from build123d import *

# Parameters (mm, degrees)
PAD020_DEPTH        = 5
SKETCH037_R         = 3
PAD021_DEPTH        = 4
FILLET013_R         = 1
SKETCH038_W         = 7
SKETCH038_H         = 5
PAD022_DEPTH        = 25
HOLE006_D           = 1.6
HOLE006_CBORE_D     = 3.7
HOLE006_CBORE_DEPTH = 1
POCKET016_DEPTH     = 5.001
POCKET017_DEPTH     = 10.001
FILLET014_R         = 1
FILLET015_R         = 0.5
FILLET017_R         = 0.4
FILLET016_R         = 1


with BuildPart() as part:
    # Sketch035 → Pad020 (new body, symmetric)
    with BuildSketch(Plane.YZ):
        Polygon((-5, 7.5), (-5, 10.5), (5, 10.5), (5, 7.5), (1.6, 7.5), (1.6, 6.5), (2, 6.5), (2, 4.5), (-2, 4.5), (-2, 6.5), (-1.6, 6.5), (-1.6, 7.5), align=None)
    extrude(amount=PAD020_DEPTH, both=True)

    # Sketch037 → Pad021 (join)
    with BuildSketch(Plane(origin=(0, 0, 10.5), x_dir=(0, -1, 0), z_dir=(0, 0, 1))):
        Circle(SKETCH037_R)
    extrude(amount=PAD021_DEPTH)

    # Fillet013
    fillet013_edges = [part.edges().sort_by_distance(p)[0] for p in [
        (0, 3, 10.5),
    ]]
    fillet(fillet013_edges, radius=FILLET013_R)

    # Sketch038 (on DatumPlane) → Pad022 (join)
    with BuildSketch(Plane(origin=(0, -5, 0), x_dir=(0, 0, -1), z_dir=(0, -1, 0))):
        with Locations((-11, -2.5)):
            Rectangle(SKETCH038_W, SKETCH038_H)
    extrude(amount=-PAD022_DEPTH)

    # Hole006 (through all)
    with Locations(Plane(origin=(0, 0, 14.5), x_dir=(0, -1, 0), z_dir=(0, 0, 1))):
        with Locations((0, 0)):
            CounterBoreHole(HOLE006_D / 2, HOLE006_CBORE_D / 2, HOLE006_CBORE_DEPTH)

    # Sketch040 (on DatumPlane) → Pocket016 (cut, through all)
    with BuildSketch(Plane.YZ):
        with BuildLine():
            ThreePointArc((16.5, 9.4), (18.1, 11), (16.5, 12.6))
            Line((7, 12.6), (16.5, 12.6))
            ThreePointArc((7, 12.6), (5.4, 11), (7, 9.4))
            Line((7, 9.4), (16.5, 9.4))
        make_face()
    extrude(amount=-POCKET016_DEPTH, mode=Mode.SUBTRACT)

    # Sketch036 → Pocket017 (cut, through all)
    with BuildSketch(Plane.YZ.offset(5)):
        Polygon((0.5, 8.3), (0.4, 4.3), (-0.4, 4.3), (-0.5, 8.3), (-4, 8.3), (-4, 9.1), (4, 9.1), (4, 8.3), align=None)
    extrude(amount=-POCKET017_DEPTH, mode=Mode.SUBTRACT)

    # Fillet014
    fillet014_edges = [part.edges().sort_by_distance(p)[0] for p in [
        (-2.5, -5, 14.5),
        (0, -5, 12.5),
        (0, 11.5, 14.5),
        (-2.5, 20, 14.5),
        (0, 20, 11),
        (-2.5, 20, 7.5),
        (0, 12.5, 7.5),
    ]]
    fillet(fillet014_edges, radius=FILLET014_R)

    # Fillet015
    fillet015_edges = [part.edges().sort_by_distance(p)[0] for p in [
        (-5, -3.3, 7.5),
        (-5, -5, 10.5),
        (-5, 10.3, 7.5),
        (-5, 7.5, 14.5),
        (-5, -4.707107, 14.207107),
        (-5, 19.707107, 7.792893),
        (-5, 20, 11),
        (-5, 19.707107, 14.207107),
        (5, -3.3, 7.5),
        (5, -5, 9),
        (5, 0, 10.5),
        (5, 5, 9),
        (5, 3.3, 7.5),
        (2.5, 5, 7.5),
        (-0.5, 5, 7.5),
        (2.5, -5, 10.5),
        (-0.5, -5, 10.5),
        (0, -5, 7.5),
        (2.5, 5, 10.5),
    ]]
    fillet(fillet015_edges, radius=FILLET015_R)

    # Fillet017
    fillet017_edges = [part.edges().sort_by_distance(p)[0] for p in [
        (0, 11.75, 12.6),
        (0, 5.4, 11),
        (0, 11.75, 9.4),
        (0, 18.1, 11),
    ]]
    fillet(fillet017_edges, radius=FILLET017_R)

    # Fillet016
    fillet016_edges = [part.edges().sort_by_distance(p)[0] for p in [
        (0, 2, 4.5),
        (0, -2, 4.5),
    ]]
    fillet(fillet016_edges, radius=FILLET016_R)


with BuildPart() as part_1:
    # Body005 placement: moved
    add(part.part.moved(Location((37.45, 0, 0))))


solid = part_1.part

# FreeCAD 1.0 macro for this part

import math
import FreeCAD as App
import Part
import Sketcher

V = App.Vector
Q = App.Units.Quantity


def edges_at(feature, points):
    """Names of the edges that pass closest to the given points."""
    edges = feature.Shape.Edges
    near = lambda p: min(range(len(edges)), key=lambda i: edges[i].distToShape(Part.Vertex(*p))[0])
    return sorted({f"Edge{near(p) + 1}" for p in points})

doc = App.newDocument("Part")
params = doc.addObject("Spreadsheet::Sheet", "Params")
for row, (alias, value) in enumerate([
    ("sketch1_width", "4 mm"),
    ("sketch1_width2", "10 mm"),
    ("sketch1_height", "3 mm"),
    ("sketch1_height2", "1 mm"),
    ("sketch1_height3", "2 mm"),
    ("pad1_length", "10 mm"),
    ("sketch2_diameter", "6 mm"),
    ("pad2_length", "4 mm"),
    ("fillet_radius", "1 mm"),
    ("sketch3_width", "5 mm"),
    ("sketch3_height", "7 mm"),
    ("pad3_length", "25 mm"),
    ("sketch4_diameter", "1.6 mm"),
    ("hole_diameter", "1.6 mm"),
    ("hole_cbore_diameter", "3.7 mm"),
    ("hole_cbore_depth", "1 mm"),
    ("sketch5_radius", "1.6 mm"),
    ("sketch5_width", "9.5 mm"),
    ("sketch6_width", "8 mm"),
    ("sketch6_width2", "3.5 mm"),
    ("sketch6_width3", "0.8 mm"),
    ("fillet2_radius", "1 mm"),
    ("fillet3_radius", "0.5 mm"),
    ("fillet4_radius", "0.4 mm"),
    ("fillet5_radius", "1 mm"),
], start=1):
    params.set(f"A{row}", alias)
    params.set(f"B{row}", "=" + value)
    params.setAlias(f"B{row}", alias)

body = doc.addObject("PartDesign::Body", "Body")

sketch1 = body.newObject("Sketcher::SketchObject", "Sketch")
sketch1.AttachmentSupport = (doc.getObject("YZ_Plane"), [""])
sketch1.MapMode = "FlatFace"
sketch1.addGeometry([
    Part.LineSegment(V(-5, 10.5, 0), V(-5, 7.5, 0)),
    Part.LineSegment(V(-5, 7.5, 0), V(-1.6, 7.5, 0)),
    Part.LineSegment(V(-1.6, 7.5, 0), V(-1.6, 6.5, 0)),
    Part.LineSegment(V(-1.6, 6.5, 0), V(-2, 6.5, 0)),
    Part.LineSegment(V(-2, 6.5, 0), V(-2, 4.5, 0)),
    Part.LineSegment(V(-2, 4.5, 0), V(2, 4.5, 0)),
    Part.LineSegment(V(2, 4.5, 0), V(2, 6.5, 0)),
    Part.LineSegment(V(2, 6.5, 0), V(1.6, 6.5, 0)),
    Part.LineSegment(V(1.6, 6.5, 0), V(1.6, 7.5, 0)),
    Part.LineSegment(V(1.6, 7.5, 0), V(5, 7.5, 0)),
    Part.LineSegment(V(5, 7.5, 0), V(5, 10.5, 0)),
    Part.LineSegment(V(5, 10.5, 0), V(-5, 10.5, 0)),
], False)
sketch1.addConstraint([
    Sketcher.Constraint("Coincident", 0, 2, 1, 1),
    Sketcher.Constraint("Coincident", 1, 2, 2, 1),
    Sketcher.Constraint("Coincident", 2, 2, 3, 1),
    Sketcher.Constraint("Coincident", 3, 2, 4, 1),
    Sketcher.Constraint("Coincident", 4, 2, 5, 1),
    Sketcher.Constraint("Coincident", 5, 2, 6, 1),
    Sketcher.Constraint("Coincident", 6, 2, 7, 1),
    Sketcher.Constraint("Coincident", 7, 2, 8, 1),
    Sketcher.Constraint("Coincident", 8, 2, 9, 1),
    Sketcher.Constraint("Coincident", 9, 2, 10, 1),
    Sketcher.Constraint("Coincident", 10, 2, 11, 1),
    Sketcher.Constraint("Coincident", 11, 2, 0, 1),
    Sketcher.Constraint("Vertical", 0),
    Sketcher.Constraint("Horizontal", 1),
    Sketcher.Constraint("Vertical", 2),
    Sketcher.Constraint("Horizontal", 3),
    Sketcher.Constraint("Vertical", 4),
    Sketcher.Constraint("Horizontal", 5),
    Sketcher.Constraint("Vertical", 6),
    Sketcher.Constraint("Horizontal", 7),
    Sketcher.Constraint("Vertical", 8),
    Sketcher.Constraint("Horizontal", 9),
    Sketcher.Constraint("Vertical", 10),
    Sketcher.Constraint("Horizontal", 11),
    Sketcher.Constraint("Symmetric", 3, 2, 6, 2, -2),
    Sketcher.Constraint("Symmetric", 1, 2, 8, 2, -2),
    Sketcher.Constraint("Equal", 1, 9),
    Sketcher.Constraint("DistanceX", 5, 1, 5, 2, Q("4 mm")),
    Sketcher.Constraint("DistanceX", 11, 2, 11, 1, Q("10 mm")),
    Sketcher.Constraint("DistanceY", 0, 2, 0, 1, Q("3 mm")),
    Sketcher.Constraint("DistanceY", 2, 2, 2, 1, Q("1 mm")),
    Sketcher.Constraint("DistanceY", 4, 2, 4, 1, Q("2 mm")),
    Sketcher.Constraint("DistanceX", 1, 1, 1, 2, Q("3.4 mm")),
    Sketcher.Constraint("DistanceY", -1, 1, 0, 2, Q("7.5 mm")),
])
sketch1.setExpression("Constraints[27]", "Params.sketch1_width")
sketch1.setExpression("Constraints[28]", "Params.sketch1_width2")
sketch1.setExpression("Constraints[29]", "Params.sketch1_height")
sketch1.setExpression("Constraints[30]", "Params.sketch1_height2")
sketch1.setExpression("Constraints[31]", "Params.sketch1_height3")
pad1 = body.newObject("PartDesign::Pad", "Pad")
pad1.Profile = sketch1
pad1.setExpression("Length", "Params.pad1_length")
pad1.Midplane = True

sketch2 = body.newObject("Sketcher::SketchObject", "Sketch001")
sketch2.AttachmentSupport = (doc.getObject("XY_Plane"), [""])
sketch2.MapMode = "FlatFace"
sketch2.AttachmentOffset = App.Placement(V(0, 0, 10.5), App.Rotation())
sketch2.addGeometry(Part.Circle(V(0, 0, 0), V(0, 0, 1), 3), False)
sketch2.addConstraint([
    Sketcher.Constraint("Coincident", 0, 3, -1, 1),
    Sketcher.Constraint("Diameter", 0, Q("6 mm")),
])
sketch2.setExpression("Constraints[1]", "Params.sketch2_diameter")
pad2 = body.newObject("PartDesign::Pad", "Pad001")
pad2.Profile = sketch2
pad2.setExpression("Length", "Params.pad2_length")
doc.recompute()

fillet = body.newObject("PartDesign::Fillet", "Fillet")
fillet.Base = (pad2, edges_at(pad2, [(0, 3, 10.5)]))
fillet.setExpression("Radius", "Params.fillet_radius")

sketch3 = body.newObject("Sketcher::SketchObject", "Sketch002")
sketch3.AttachmentSupport = (doc.getObject("XZ_Plane"), [""])
sketch3.MapMode = "FlatFace"
sketch3.AttachmentOffset = App.Placement(V(0, 0, 5), App.Rotation())
sketch3.addGeometry([
    Part.LineSegment(V(0, 14, 0), V(-5, 14, 0)),
    Part.LineSegment(V(-5, 14, 0), V(-5, 8, 0)),
    Part.LineSegment(V(-5, 8, 0), V(0, 8, 0)),
    Part.LineSegment(V(0, 8, 0), V(0, 14, 0)),
], False)
sketch3.addConstraint([
    Sketcher.Constraint("Coincident", 0, 2, 1, 1),
    Sketcher.Constraint("Coincident", 1, 2, 2, 1),
    Sketcher.Constraint("Coincident", 2, 2, 3, 1),
    Sketcher.Constraint("Coincident", 3, 2, 0, 1),
    Sketcher.Constraint("Horizontal", 0),
    Sketcher.Constraint("Vertical", 1),
    Sketcher.Constraint("Horizontal", 2),
    Sketcher.Constraint("Vertical", 3),
    Sketcher.Constraint("PointOnObject", 2, 2, -2),
    Sketcher.Constraint("DistanceX", 0, 2, 0, 1, Q("5 mm")),
    Sketcher.Constraint("DistanceY", 1, 2, 1, 1, Q("7 mm")),
    Sketcher.Constraint("DistanceY", -1, 1, 0, 2, Q("14.5 mm")),
])
sketch3.setExpression("Constraints[9]", "Params.sketch3_width")
sketch3.setExpression("Constraints[10]", "Params.sketch3_height")
pad3 = body.newObject("PartDesign::Pad", "Pad002")
pad3.Profile = sketch3
pad3.setExpression("Length", "Params.pad3_length")
pad3.Reversed = True

sketch4 = body.newObject("Sketcher::SketchObject", "Sketch003")
sketch4.AttachmentSupport = (doc.getObject("XY_Plane"), [""])
sketch4.MapMode = "FlatFace"
sketch4.AttachmentOffset = App.Placement(V(0, 0, 14.5), App.Rotation())
sketch4.addGeometry(Part.Circle(V(0, 0, 0), V(0, 0, 1), 0.8), False)
sketch4.addConstraint([
    Sketcher.Constraint("Coincident", 0, 3, -1, 1),
    Sketcher.Constraint("Diameter", 0, Q("1.6 mm")),
])
sketch4.setExpression("Constraints[1]", "Params.sketch4_diameter")
doc.recompute()
hole = body.newObject("PartDesign::Hole", "Hole")
hole.Profile = sketch4
hole.ThreadType = "None"
hole.setExpression("Diameter", "Params.hole_diameter")
hole.DepthType = "ThroughAll"
hole.HoleCutType = "Counterbore"
hole.setExpression("HoleCutDiameter", "Params.hole_cbore_diameter")
hole.setExpression("HoleCutDepth", "Params.hole_cbore_depth")

sketch5 = body.newObject("Sketcher::SketchObject", "Sketch004")
sketch5.AttachmentSupport = (doc.getObject("YZ_Plane"), [""])
sketch5.MapMode = "FlatFace"
sketch5.addGeometry([
    Part.ArcOfCircle(Part.Circle(V(16.5, 11, 0), V(0, 0, 1), 1.6), math.radians(-90), math.radians(90)),
    Part.LineSegment(V(16.5, 12.6, 0), V(7, 12.6, 0)),
    Part.ArcOfCircle(Part.Circle(V(7, 11, 0), V(0, 0, 1), 1.6), math.radians(90), math.radians(270)),
    Part.LineSegment(V(7, 9.4, 0), V(16.5, 9.4, 0)),
], False)
sketch5.addConstraint([
    Sketcher.Constraint("Tangent", 0, 2, 1, 1),
    Sketcher.Constraint("Tangent", 1, 2, 2, 1),
    Sketcher.Constraint("Tangent", 2, 2, 3, 1),
    Sketcher.Constraint("Tangent", 3, 2, 0, 1),
    Sketcher.Constraint("Horizontal", 1),
    Sketcher.Constraint("Horizontal", 3),
    Sketcher.Constraint("Radius", 0, Q("1.6 mm")),
    Sketcher.Constraint("DistanceX", 1, 2, 1, 1, Q("9.5 mm")),
    Sketcher.Constraint("DistanceY", -1, 1, 0, 3, Q("11 mm")),
    Sketcher.Constraint("DistanceX", -1, 1, 2, 3, Q("7 mm")),
])
sketch5.setExpression("Constraints[6]", "Params.sketch5_radius")
sketch5.setExpression("Constraints[7]", "Params.sketch5_width")
pocket1 = body.newObject("PartDesign::Pocket", "Pocket")
pocket1.Profile = sketch5
pocket1.Type = "ThroughAll"

sketch6 = body.newObject("Sketcher::SketchObject", "Sketch005")
sketch6.AttachmentSupport = (doc.getObject("YZ_Plane"), [""])
sketch6.MapMode = "FlatFace"
sketch6.AttachmentOffset = App.Placement(V(0, 0, 5), App.Rotation())
sketch6.addGeometry([
    Part.LineSegment(V(0.4, 4.3, 0), V(0.5, 8.3, 0)),
    Part.LineSegment(V(0.5, 8.3, 0), V(4, 8.3, 0)),
    Part.LineSegment(V(4, 8.3, 0), V(4, 9.1, 0)),
    Part.LineSegment(V(4, 9.1, 0), V(-4, 9.1, 0)),
    Part.LineSegment(V(-4, 9.1, 0), V(-4, 8.3, 0)),
    Part.LineSegment(V(-4, 8.3, 0), V(-0.5, 8.3, 0)),
    Part.LineSegment(V(-0.5, 8.3, 0), V(-0.4, 4.3, 0)),
    Part.LineSegment(V(-0.4, 4.3, 0), V(0.4, 4.3, 0)),
], False)
sketch6.addConstraint([
    Sketcher.Constraint("Coincident", 0, 2, 1, 1),
    Sketcher.Constraint("Coincident", 1, 2, 2, 1),
    Sketcher.Constraint("Coincident", 2, 2, 3, 1),
    Sketcher.Constraint("Coincident", 3, 2, 4, 1),
    Sketcher.Constraint("Coincident", 4, 2, 5, 1),
    Sketcher.Constraint("Coincident", 5, 2, 6, 1),
    Sketcher.Constraint("Coincident", 6, 2, 7, 1),
    Sketcher.Constraint("Coincident", 7, 2, 0, 1),
    Sketcher.Constraint("Horizontal", 1),
    Sketcher.Constraint("Vertical", 2),
    Sketcher.Constraint("Horizontal", 3),
    Sketcher.Constraint("Vertical", 4),
    Sketcher.Constraint("Horizontal", 5),
    Sketcher.Constraint("Horizontal", 7),
    Sketcher.Constraint("Symmetric", 1, 2, 4, 2, -2),
    Sketcher.Constraint("Equal", 1, 5),
    Sketcher.Constraint("Equal", 7, 2),
    Sketcher.Constraint("Equal", 0, 6),
    Sketcher.Constraint("DistanceX", 3, 2, 3, 1, Q("8 mm")),
    Sketcher.Constraint("DistanceX", 1, 1, 1, 2, Q("3.5 mm")),
    Sketcher.Constraint("DistanceX", 7, 1, 7, 2, Q("0.8 mm")),
    Sketcher.Constraint("DistanceY", 6, 2, 5, 2, Q("4 mm")),
    Sketcher.Constraint("DistanceY", -1, 1, 0, 2, Q("8.3 mm")),
])
sketch6.setExpression("Constraints[18]", "Params.sketch6_width")
sketch6.setExpression("Constraints[19]", "Params.sketch6_width2")
sketch6.setExpression("Constraints[20]", "Params.sketch6_width3")
pocket2 = body.newObject("PartDesign::Pocket", "Pocket001")
pocket2.Profile = sketch6
pocket2.Type = "ThroughAll"
doc.recompute()

fillet2 = body.newObject("PartDesign::Fillet", "Fillet001")
fillet2.Base = (pocket2, edges_at(pocket2, [
    (-2.5, -5, 14.5),
    (0, -5, 12.5),
    (0, 11.5, 14.5),
    (-2.5, 20, 14.5),
    (0, 20, 11),
    (-2.5, 20, 7.5),
    (0, 12.5, 7.5),
]))
fillet2.setExpression("Radius", "Params.fillet2_radius")
doc.recompute()

fillet3 = body.newObject("PartDesign::Fillet", "Fillet002")
fillet3.Base = (fillet2, edges_at(fillet2, [
    (-5, -3.3, 7.5),
    (-5, -5, 10.5),
    (-5, 10.3, 7.5),
    (-5, 7.5, 14.5),
    (-5, -4.707, 14.207),
    (-5, 19.707, 7.793),
    (-5, 20, 11),
    (-5, 19.707, 14.207),
    (5, -3.3, 7.5),
    (5, -5, 9),
    (5, 0, 10.5),
    (5, 5, 9),
    (5, 3.3, 7.5),
    (2, 5, 7.5),
    (2, 5, 7.5),
    (2, -5, 10.5),
    (2, -5, 10.5),
    (0, -5, 7.5),
    (2.5, 5, 10.5),
]))
fillet3.setExpression("Radius", "Params.fillet3_radius")
doc.recompute()

fillet4 = body.newObject("PartDesign::Fillet", "Fillet003")
fillet4.Base = (fillet3, edges_at(fillet3, [
    (0, 11.75, 12.6),
    (0, 5.4, 11),
    (0, 11.75, 9.4),
    (0, 18.1, 11),
]))
fillet4.setExpression("Radius", "Params.fillet4_radius")
doc.recompute()

fillet5 = body.newObject("PartDesign::Fillet", "Fillet004")
fillet5.Base = (fillet4, edges_at(fillet4, [(0, 2, 4.5), (0, -2, 4.5)]))
fillet5.setExpression("Radius", "Params.fillet5_radius")
body2 = doc.addObject("PartDesign::Body", "Body001")
doc.recompute()

body.Placement = App.Placement(V(37.45, 0, 0), App.Rotation(V(0, 0, 1), 0))
boolean = body2.newObject("PartDesign::Boolean", "Boolean")
boolean.Type = "Fuse"
boolean.addObjects([body])

doc.recompute()
